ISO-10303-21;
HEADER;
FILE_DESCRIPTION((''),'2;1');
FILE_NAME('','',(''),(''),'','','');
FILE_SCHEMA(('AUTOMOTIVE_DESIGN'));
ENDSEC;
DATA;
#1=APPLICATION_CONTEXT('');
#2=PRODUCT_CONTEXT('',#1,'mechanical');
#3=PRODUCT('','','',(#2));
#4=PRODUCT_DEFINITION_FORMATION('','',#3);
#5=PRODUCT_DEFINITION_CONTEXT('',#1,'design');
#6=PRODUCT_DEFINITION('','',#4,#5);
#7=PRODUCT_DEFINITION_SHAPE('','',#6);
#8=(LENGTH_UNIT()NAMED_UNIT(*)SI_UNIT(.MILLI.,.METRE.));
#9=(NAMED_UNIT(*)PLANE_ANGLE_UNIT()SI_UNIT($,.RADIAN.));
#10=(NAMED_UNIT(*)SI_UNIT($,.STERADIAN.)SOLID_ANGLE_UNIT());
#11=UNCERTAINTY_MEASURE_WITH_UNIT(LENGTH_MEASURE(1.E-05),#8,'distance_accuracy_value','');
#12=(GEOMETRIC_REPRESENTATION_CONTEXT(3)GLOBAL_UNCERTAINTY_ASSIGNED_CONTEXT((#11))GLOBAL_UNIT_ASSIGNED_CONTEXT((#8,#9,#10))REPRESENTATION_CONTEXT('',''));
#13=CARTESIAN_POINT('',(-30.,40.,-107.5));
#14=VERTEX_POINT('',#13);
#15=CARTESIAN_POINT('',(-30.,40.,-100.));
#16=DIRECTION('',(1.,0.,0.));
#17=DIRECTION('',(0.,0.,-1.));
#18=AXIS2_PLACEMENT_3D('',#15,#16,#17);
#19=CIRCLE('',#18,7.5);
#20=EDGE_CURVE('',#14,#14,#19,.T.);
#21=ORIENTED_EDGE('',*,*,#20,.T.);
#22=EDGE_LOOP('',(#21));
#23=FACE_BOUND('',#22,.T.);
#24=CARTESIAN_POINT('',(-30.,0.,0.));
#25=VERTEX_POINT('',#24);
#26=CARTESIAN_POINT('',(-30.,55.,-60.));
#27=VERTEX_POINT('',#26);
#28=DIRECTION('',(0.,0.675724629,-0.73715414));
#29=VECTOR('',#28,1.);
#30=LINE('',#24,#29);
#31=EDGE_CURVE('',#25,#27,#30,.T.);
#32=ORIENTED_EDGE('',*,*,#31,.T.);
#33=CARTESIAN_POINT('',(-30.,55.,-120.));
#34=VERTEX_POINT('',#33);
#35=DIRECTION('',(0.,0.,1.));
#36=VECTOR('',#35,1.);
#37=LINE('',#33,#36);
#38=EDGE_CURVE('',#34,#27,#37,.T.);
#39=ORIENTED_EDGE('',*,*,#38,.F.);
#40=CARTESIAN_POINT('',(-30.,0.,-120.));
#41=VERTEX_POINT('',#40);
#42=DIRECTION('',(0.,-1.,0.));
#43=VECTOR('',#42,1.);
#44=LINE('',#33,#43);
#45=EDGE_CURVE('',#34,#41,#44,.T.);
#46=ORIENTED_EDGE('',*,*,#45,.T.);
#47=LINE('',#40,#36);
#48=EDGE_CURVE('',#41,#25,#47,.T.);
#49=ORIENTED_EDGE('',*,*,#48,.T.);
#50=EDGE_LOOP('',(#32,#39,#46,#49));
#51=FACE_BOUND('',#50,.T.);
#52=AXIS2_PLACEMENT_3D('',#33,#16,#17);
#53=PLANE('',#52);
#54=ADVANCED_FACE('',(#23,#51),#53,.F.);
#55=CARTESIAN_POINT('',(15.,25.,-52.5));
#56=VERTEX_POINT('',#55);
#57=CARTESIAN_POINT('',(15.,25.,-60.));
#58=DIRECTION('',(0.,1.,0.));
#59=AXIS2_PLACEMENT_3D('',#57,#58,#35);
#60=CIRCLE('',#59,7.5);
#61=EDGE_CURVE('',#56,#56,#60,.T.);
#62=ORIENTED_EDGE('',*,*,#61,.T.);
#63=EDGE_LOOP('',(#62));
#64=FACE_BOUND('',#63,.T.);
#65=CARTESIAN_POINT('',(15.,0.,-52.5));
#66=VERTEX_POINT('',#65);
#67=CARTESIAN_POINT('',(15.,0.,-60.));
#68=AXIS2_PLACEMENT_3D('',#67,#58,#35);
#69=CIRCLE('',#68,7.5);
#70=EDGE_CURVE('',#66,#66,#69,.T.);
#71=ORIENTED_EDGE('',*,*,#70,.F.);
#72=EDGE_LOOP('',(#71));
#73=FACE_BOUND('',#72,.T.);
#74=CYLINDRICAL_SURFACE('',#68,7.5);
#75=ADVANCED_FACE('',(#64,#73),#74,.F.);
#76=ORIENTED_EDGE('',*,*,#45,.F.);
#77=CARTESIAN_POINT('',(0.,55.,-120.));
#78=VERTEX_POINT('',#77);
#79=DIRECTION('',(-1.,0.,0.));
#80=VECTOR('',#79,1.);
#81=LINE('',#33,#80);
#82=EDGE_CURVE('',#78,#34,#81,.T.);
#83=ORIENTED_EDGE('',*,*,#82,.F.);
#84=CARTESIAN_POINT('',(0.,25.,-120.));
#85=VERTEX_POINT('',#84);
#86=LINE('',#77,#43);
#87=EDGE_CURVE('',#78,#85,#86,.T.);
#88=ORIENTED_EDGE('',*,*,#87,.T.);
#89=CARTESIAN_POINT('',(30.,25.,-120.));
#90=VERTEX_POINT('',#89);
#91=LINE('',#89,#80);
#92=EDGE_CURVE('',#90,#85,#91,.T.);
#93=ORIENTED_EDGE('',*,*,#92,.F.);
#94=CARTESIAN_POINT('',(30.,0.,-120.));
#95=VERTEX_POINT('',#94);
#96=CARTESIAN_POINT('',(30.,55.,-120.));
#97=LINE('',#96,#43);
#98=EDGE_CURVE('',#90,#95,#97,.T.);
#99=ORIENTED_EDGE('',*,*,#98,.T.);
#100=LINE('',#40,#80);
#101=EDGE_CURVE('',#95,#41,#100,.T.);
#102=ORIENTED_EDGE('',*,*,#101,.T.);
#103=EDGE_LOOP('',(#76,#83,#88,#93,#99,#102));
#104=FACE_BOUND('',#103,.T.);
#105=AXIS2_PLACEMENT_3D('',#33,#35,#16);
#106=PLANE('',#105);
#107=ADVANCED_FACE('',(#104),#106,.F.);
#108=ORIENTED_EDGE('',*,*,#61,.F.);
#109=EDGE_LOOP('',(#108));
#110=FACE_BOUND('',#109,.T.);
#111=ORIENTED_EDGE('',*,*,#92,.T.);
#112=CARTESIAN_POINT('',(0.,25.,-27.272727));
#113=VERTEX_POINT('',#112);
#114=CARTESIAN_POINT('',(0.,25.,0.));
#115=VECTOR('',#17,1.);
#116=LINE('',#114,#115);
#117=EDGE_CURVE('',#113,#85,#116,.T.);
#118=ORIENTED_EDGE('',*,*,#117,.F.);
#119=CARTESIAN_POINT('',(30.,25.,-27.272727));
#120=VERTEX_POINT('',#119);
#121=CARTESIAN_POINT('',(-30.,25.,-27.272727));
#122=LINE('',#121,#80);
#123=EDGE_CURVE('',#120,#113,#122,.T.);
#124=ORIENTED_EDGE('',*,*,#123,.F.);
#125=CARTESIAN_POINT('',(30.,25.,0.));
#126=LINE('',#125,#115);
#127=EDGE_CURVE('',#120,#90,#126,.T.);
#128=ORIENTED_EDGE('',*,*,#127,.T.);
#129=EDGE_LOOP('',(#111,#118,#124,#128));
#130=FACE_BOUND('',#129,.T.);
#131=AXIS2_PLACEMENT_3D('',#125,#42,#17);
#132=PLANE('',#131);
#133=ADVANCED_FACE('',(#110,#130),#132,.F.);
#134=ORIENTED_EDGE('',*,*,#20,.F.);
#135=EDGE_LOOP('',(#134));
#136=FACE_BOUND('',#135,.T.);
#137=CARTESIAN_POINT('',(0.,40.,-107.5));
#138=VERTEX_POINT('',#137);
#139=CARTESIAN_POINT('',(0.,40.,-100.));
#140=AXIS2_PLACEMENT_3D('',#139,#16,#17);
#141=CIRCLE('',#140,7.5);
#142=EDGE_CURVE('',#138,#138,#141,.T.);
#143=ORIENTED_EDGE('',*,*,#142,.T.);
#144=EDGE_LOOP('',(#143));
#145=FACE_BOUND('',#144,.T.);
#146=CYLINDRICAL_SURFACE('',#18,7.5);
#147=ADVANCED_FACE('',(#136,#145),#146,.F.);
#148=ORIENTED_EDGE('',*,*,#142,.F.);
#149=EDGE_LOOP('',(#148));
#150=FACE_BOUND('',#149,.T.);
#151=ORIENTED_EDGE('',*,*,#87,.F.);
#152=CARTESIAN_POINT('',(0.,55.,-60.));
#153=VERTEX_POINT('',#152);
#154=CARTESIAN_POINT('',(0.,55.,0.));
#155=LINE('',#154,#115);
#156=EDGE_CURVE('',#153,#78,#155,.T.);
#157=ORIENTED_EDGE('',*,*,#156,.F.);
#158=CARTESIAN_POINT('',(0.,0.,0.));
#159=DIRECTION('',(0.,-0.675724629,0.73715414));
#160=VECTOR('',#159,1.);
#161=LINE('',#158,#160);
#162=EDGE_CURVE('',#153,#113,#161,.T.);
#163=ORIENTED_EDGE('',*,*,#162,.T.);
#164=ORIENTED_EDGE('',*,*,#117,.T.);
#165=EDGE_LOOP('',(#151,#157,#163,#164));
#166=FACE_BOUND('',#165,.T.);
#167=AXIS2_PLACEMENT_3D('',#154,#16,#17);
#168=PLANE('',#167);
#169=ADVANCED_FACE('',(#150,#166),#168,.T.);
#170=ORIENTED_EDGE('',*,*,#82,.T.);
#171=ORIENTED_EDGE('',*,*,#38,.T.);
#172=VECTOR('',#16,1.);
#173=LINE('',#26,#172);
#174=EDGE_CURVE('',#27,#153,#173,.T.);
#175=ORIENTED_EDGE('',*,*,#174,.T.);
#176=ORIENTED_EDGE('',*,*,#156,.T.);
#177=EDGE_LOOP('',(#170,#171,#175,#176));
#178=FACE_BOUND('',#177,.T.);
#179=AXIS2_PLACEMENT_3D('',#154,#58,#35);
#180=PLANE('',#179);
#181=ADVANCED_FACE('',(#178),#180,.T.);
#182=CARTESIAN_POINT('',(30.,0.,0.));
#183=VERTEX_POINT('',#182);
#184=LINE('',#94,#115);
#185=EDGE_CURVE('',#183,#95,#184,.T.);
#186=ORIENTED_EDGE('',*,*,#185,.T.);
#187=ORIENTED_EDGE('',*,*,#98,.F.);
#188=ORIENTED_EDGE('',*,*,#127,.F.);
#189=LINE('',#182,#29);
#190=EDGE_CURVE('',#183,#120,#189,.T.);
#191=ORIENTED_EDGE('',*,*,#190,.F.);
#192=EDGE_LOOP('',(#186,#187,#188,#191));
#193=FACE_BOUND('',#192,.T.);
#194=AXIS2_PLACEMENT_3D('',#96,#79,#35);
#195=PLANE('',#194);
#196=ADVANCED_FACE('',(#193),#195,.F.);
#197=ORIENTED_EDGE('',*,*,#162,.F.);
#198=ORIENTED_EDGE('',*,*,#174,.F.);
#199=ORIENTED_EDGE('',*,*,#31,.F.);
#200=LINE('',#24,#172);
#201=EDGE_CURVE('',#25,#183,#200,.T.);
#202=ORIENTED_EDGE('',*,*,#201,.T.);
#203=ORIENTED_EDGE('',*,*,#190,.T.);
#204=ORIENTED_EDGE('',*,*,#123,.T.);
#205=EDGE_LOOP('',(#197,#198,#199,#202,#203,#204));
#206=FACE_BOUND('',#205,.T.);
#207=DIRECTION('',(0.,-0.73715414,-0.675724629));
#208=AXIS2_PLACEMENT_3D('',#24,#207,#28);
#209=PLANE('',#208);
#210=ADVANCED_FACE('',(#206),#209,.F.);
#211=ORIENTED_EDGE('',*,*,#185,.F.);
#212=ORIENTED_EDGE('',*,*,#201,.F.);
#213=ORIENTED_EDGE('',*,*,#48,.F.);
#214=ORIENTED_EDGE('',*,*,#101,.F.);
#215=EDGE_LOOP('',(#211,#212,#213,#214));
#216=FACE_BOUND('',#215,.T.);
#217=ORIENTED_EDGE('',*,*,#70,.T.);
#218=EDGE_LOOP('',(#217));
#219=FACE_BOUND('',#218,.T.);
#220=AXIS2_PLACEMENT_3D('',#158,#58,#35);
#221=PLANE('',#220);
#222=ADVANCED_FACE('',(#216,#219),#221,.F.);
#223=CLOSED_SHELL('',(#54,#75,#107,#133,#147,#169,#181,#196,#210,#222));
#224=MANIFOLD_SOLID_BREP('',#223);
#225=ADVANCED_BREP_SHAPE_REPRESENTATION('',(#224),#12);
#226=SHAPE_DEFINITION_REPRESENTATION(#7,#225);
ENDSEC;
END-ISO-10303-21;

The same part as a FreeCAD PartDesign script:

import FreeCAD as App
import Part
import Sketcher
from FreeCAD import Vector
Q = App.Units.Quantity


def add_polygon(sketch, points):
    """Adds a closed chain of lines whose ends are joined by coincident constraints."""
    first, n = sketch.GeometryCount, len(points)
    for a, b in zip(points, points[1:] + points[:1]):
        sketch.addGeometry(Part.LineSegment(App.Vector(*a, 0), App.Vector(*b, 0)), False)
    for i in range(n):
        sketch.addConstraint(Sketcher.Constraint("Coincident", first + i, 2, first + (i + 1) % n, 1))

doc = App.newDocument("Part")
body = doc.addObject("PartDesign::Body", "Body")

# Sketch on XZ plane
sketch1 = body.newObject("Sketcher::SketchObject", "Sketch")
sketch1.AttachmentSupport = (doc.getObject("XZ_Plane"), [""])
sketch1.MapMode = "FlatFace"
add_polygon(sketch1, [(-30, -120), (-30, 0), (30, 0), (30, -120)])  # lines 0-3
sketch1.addConstraint([
    Sketcher.Constraint("Vertical", 0),
    Sketcher.Constraint("Horizontal", 1),
    Sketcher.Constraint("Vertical", 2),
    Sketcher.Constraint("Horizontal", 3),
    Sketcher.Constraint("Symmetric", 0, 2, 1, 2, -1, 1),
    Sketcher.Constraint("DistanceX", 1, 1, 1, 2, Q("60 mm")),
    Sketcher.Constraint("DistanceY", 0, 1, 0, 2, Q("120 mm")),
])
pad1 = body.newObject("PartDesign::Pad", "Pad")
pad1.Profile = sketch1
pad1.Length = 55
pad1.Reversed = True

# Sketch on YZ plane
sketch2 = body.newObject("Sketcher::SketchObject", "Sketch001")
sketch2.AttachmentSupport = (doc.getObject("YZ_Plane"), [""])
sketch2.MapMode = "FlatFace"
sketch2.AttachmentOffset = App.Placement(Vector(0, 0, 30), App.Rotation())
add_polygon(sketch2, [(0, 0), (55, -60), (55, 0)])  # lines 0-2
sketch2.addConstraint([
    Sketcher.Constraint("Vertical", 1),
    Sketcher.Constraint("Horizontal", 2),
    Sketcher.Constraint("Coincident", 2, 2, -1, 1),
    Sketcher.Constraint("DistanceX", 2, 2, 2, 1, Q("55 mm")),
    Sketcher.Constraint("DistanceY", 1, 1, 1, 2, Q("60 mm")),
])
pocket1 = body.newObject("PartDesign::Pocket", "Pocket")
pocket1.Profile = sketch2
pocket1.Type = "ThroughAll"

# Sketch on XY plane
sketch3 = body.newObject("Sketcher::SketchObject", "Sketch002")
sketch3.AttachmentSupport = (doc.getObject("XY_Plane"), [""])
sketch3.MapMode = "FlatFace"
sketch3.AttachmentOffset = App.Placement(Vector(0, 0, -120), App.Rotation())
add_polygon(sketch3, [(30, 55), (30, 25), (0, 25), (0, 55)])  # lines 0-3
sketch3.addConstraint([
    Sketcher.Constraint("Vertical", 0),
    Sketcher.Constraint("Horizontal", 1),
    Sketcher.Constraint("Vertical", 2),
    Sketcher.Constraint("Horizontal", 3),
    Sketcher.Constraint("PointOnObject", 1, 2, -2),
    Sketcher.Constraint("Equal", 3, 0),
    Sketcher.Constraint("DistanceX", 1, 2, 1, 1, Q("30 mm")),
    Sketcher.Constraint("DistanceY", -1, 1, 0, 2, Q("25 mm")),
])
pocket2 = body.newObject("PartDesign::Pocket", "Pocket001")
pocket2.Profile = sketch3
pocket2.Type = "ThroughAll"
pocket2.Reversed = True

# Sketch on YZ plane
sketch4 = body.newObject("Sketcher::SketchObject", "Sketch003")
sketch4.AttachmentSupport = (doc.getObject("YZ_Plane"), [""])
sketch4.MapMode = "FlatFace"
sketch4.addGeometry(Part.Circle(Vector(40, -100, 0), Vector(0, 0, 1), 8), False)
sketch4.addConstraint([
    Sketcher.Constraint("Diameter", 0, Q("15 mm")),
    Sketcher.Constraint("DistanceX", -1, 1, 0, 3, Q("40 mm")),
    Sketcher.Constraint("DistanceY", 0, 3, -1, 1, Q("100 mm")),
])
pocket3 = body.newObject("PartDesign::Pocket", "Pocket002")
pocket3.Profile = sketch4
pocket3.Type = "ThroughAll"

# Sketch on XZ plane
sketch5 = body.newObject("Sketcher::SketchObject", "Sketch004")
sketch5.AttachmentSupport = (doc.getObject("XZ_Plane"), [""])
sketch5.MapMode = "FlatFace"
sketch5.AttachmentOffset = App.Placement(Vector(0, 0, -25), App.Rotation())
sketch5.addGeometry(Part.Circle(Vector(15, -60, 0), Vector(0, 0, 1), 8), False)
sketch5.addConstraint([
    Sketcher.Constraint("Diameter", 0, Q("15 mm")),
    Sketcher.Constraint("DistanceX", -1, 1, 0, 3, Q("15 mm")),
    Sketcher.Constraint("DistanceY", 0, 3, -1, 1, Q("60 mm")),
])
pocket4 = body.newObject("PartDesign::Pocket", "Pocket003")
pocket4.Profile = sketch5
pocket4.Type = "ThroughAll"
pocket4.Reversed = True

doc.recompute()
